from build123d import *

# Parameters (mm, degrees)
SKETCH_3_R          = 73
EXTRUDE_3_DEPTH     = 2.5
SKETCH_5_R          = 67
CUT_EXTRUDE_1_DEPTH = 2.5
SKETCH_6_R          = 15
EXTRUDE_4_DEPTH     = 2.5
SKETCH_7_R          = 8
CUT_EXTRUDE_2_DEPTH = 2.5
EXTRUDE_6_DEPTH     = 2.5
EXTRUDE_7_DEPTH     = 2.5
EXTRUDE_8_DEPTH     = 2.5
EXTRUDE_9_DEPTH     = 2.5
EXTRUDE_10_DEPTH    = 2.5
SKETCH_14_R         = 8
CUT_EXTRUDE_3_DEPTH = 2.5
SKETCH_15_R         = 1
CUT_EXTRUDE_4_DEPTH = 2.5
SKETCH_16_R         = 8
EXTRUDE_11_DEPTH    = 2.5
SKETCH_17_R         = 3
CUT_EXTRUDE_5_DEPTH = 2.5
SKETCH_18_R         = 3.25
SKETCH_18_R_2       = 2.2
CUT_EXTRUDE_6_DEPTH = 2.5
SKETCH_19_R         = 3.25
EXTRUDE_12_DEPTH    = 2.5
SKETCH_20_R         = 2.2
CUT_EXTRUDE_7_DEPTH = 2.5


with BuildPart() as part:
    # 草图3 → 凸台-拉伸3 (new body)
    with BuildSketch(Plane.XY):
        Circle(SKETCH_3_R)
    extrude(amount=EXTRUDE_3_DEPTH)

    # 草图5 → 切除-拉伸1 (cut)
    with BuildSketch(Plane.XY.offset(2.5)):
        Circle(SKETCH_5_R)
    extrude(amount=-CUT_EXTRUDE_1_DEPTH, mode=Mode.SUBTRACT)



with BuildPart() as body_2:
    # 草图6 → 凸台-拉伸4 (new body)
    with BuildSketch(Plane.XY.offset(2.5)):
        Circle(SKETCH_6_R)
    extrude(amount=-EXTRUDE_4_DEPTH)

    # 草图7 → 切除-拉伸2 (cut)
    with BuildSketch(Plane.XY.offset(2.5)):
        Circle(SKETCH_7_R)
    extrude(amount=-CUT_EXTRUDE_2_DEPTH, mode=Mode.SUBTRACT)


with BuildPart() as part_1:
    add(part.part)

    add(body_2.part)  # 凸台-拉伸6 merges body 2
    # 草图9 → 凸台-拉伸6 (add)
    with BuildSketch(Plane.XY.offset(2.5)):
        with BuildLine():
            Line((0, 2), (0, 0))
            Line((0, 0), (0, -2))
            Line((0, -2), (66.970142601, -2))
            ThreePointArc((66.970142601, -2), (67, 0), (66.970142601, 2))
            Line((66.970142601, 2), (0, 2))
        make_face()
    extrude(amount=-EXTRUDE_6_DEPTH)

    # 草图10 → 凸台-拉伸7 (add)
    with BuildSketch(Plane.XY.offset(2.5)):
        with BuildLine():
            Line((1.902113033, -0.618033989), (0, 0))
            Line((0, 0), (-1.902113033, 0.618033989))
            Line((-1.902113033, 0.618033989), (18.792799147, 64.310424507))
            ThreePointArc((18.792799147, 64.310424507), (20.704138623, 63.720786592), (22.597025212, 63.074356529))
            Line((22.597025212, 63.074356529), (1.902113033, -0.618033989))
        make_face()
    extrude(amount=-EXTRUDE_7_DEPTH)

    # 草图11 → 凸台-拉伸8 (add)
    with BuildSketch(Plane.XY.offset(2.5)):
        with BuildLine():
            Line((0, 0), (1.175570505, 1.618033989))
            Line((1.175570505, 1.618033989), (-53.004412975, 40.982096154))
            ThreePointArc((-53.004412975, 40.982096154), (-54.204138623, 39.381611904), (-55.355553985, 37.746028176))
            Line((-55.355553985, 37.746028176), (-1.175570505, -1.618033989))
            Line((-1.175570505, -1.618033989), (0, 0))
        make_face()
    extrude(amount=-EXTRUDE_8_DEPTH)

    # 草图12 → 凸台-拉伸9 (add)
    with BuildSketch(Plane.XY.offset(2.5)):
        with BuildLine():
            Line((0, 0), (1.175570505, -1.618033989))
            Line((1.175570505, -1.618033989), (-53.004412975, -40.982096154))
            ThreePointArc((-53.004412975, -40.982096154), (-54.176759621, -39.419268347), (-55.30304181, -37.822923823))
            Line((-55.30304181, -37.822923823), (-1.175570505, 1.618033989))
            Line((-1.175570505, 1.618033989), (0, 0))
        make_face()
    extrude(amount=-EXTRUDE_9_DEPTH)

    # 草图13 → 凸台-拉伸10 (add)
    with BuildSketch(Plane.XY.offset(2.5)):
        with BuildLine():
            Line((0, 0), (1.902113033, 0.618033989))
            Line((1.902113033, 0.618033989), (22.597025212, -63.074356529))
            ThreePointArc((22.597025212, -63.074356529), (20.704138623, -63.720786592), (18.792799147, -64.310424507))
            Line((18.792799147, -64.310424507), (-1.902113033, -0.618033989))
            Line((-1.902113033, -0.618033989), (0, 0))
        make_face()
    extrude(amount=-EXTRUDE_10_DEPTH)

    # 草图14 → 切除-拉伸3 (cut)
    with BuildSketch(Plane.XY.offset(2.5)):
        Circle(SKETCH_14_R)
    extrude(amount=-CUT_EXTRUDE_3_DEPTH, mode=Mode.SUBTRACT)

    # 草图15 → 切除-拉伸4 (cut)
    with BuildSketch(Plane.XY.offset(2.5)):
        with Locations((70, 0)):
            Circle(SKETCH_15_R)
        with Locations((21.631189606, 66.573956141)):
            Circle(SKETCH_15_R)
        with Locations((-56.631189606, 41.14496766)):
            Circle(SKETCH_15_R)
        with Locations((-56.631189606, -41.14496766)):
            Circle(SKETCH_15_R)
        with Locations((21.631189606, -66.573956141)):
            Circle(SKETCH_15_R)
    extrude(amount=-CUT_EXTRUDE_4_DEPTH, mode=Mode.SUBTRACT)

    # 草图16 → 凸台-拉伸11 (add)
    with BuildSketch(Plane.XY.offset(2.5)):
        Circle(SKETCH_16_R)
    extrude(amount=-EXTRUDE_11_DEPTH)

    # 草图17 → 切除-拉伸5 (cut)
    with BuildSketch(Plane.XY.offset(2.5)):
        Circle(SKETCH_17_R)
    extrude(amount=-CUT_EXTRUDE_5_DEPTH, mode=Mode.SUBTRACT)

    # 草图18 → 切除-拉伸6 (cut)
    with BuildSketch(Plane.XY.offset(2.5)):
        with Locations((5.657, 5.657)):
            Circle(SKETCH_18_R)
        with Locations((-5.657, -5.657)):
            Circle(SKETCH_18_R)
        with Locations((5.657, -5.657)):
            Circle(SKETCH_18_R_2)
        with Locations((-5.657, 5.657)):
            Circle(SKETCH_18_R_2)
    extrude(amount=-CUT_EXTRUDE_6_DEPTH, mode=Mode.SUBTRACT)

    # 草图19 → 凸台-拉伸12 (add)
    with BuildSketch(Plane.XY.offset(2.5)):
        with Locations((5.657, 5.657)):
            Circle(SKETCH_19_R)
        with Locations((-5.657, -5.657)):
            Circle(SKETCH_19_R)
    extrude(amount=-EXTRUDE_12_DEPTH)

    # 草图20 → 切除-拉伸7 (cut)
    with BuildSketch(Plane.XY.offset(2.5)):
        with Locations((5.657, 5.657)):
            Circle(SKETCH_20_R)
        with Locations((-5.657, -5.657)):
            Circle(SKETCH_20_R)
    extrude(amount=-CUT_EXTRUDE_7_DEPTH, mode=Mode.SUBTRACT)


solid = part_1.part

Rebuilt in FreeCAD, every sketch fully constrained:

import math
import FreeCAD as App
import Part
import Sketcher

V = App.Vector
Q = App.Units.Quantity

doc = App.newDocument("Part")
params = doc.addObject("Spreadsheet::Sheet", "Params")
for row, (alias, value) in enumerate([
    ("sketch1_diameter", "146 mm"),
    ("pad1_length", "2.5 mm"),
    ("sketch2_diameter", "134 mm"),
    ("pocket1_length", "2.5 mm"),
    ("sketch3_diameter", "30 mm"),
    ("pad2_length", "2.5 mm"),
    ("sketch4_diameter", "16 mm"),
    ("pocket2_length", "2.5 mm"),
    ("sketch5_radius", "67 mm"),
    ("sketch5_height", "4 mm"),
    ("pad3_length", "2.5 mm"),
    ("sketch6_radius", "67 mm"),
    ("sketch6_length", "4 mm"),
    ("pad4_length", "2.5 mm"),
    ("sketch7_radius", "67 mm"),
    ("sketch7_length", "4 mm"),
    ("pad5_length", "2.5 mm"),
    ("sketch8_radius", "66.999999 mm"),
    ("sketch8_length", "4 mm"),
    ("pad6_length", "2.5 mm"),
    ("sketch9_radius", "67 mm"),
    ("sketch9_length", "4 mm"),
    ("pad7_length", "2.5 mm"),
    ("sketch10_diameter", "16 mm"),
    ("pocket3_length", "2.5 mm"),
    ("sketch11_diameter", "2 mm"),
    ("pocket4_length", "2.5 mm"),
    ("sketch12_diameter", "16 mm"),
    ("pad8_length", "2.5 mm"),
    ("sketch13_diameter", "6 mm"),
    ("pocket5_length", "2.5 mm"),
    ("sketch14_diameter", "6.5 mm"),
    ("sketch14_diameter2", "4.4 mm"),
    ("pocket6_length", "2.5 mm"),
    ("sketch15_diameter", "6.5 mm"),
    ("pad9_length", "2.5 mm"),
    ("sketch16_diameter", "4.4 mm"),
    ("pocket7_length", "2.5 mm"),
], start=1):
    params.set(f"A{row}", alias)
    params.set(f"B{row}", "=" + value)
    params.setAlias(f"B{row}", alias)

body = doc.addObject("PartDesign::Body", "Body")

# Sketch on XY plane
sketch1 = body.newObject("Sketcher::SketchObject", "Sketch")
sketch1.AttachmentSupport = (doc.getObject("XY_Plane"), [""])
sketch1.MapMode = "FlatFace"
sketch1.addGeometry(Part.Circle(V(0, 0, 0), V(0, 0, 1), 73), False)
sketch1.addConstraint(Sketcher.Constraint("Coincident", 0, 3, -1, 1))
sketch1.addConstraint(Sketcher.Constraint("Diameter", 0, 146.0))
sketch1.setExpression("Constraints[1]", "Params.sketch1_diameter")
pad1 = body.newObject("PartDesign::Pad", "Pad")
pad1.Profile = sketch1
pad1.setExpression("Length", "Params.pad1_length")

# Sketch on XY plane
sketch2 = body.newObject("Sketcher::SketchObject", "Sketch001")
sketch2.AttachmentSupport = (doc.getObject("XY_Plane"), [""])
sketch2.MapMode = "FlatFace"
sketch2.AttachmentOffset = App.Placement(V(0, 0, 2.5), App.Rotation())
sketch2.addGeometry(Part.Circle(V(0, 0, 0), V(0, 0, 1), 67), False)
sketch2.addConstraint(Sketcher.Constraint("Coincident", 0, 3, -1, 1))
sketch2.addConstraint(Sketcher.Constraint("Diameter", 0, 134.0))
sketch2.setExpression("Constraints[1]", "Params.sketch2_diameter")
pocket1 = body.newObject("PartDesign::Pocket", "Pocket")
pocket1.Profile = sketch2
pocket1.setExpression("Length", "Params.pocket1_length")
body2 = doc.addObject("PartDesign::Body", "Body001")

# Sketch on XY plane
sketch3 = body2.newObject("Sketcher::SketchObject", "Sketch002")
sketch3.AttachmentSupport = (doc.getObject("XY_Plane001"), [""])
sketch3.MapMode = "FlatFace"
sketch3.AttachmentOffset = App.Placement(V(0, 0, 2.5), App.Rotation())
sketch3.addGeometry(Part.Circle(V(0, 0, 0), V(0, 0, 1), 15), False)
sketch3.addConstraint(Sketcher.Constraint("Coincident", 0, 3, -1, 1))
sketch3.addConstraint(Sketcher.Constraint("Diameter", 0, 30.0))
sketch3.setExpression("Constraints[1]", "Params.sketch3_diameter")
pad2 = body2.newObject("PartDesign::Pad", "Pad001")
pad2.Profile = sketch3
pad2.setExpression("Length", "Params.pad2_length")
pad2.Reversed = True

# Sketch on XY plane
sketch4 = body2.newObject("Sketcher::SketchObject", "Sketch003")
sketch4.AttachmentSupport = (doc.getObject("XY_Plane001"), [""])
sketch4.MapMode = "FlatFace"
sketch4.AttachmentOffset = App.Placement(V(0, 0, 2.5), App.Rotation())
sketch4.addGeometry(Part.Circle(V(0, 0, 0), V(0, 0, 1), 8), False)
sketch4.addConstraint(Sketcher.Constraint("Coincident", 0, 3, -1, 1))
sketch4.addConstraint(Sketcher.Constraint("Diameter", 0, 16.0))
sketch4.setExpression("Constraints[1]", "Params.sketch4_diameter")
pocket2 = body2.newObject("PartDesign::Pocket", "Pocket001")
pocket2.Profile = sketch4
pocket2.setExpression("Length", "Params.pocket2_length")
body.AllowCompound = True
doc.recompute()

boolean = body.newObject("PartDesign::Boolean", "Boolean")
boolean.Type = "Fuse"
boolean.addObjects([body2])

# Sketch on XY plane
sketch5 = body.newObject("Sketcher::SketchObject", "Sketch004")
sketch5.AttachmentSupport = (doc.getObject("XY_Plane"), [""])
sketch5.MapMode = "FlatFace"
sketch5.AttachmentOffset = App.Placement(V(0, 0, 2.5), App.Rotation())
sketch5.addGeometry(Part.LineSegment(V(0, 2, 0), V(0, -2, 0)), False)
sketch5.addGeometry(Part.LineSegment(V(0, -2, 0), V(67, -2, 0)), False)
sketch5.addGeometry(Part.ArcOfCircle(Part.Circle(V(0, 0, 0), V(0, 0, 1), 67), math.radians(-1.71), math.radians(1.71)), False)
sketch5.addGeometry(Part.LineSegment(V(67, 2, 0), V(0, 2, 0)), False)
sketch5.addConstraint(Sketcher.Constraint("Coincident", 0, 2, 1, 1))
sketch5.addConstraint(Sketcher.Constraint("Coincident", 1, 2, 2, 1))
sketch5.addConstraint(Sketcher.Constraint("Coincident", 2, 2, 3, 1))
sketch5.addConstraint(Sketcher.Constraint("Coincident", 3, 2, 0, 1))
sketch5.addConstraint(Sketcher.Constraint("Vertical", 0))
sketch5.addConstraint(Sketcher.Constraint("Horizontal", 1))
sketch5.addConstraint(Sketcher.Constraint("Horizontal", 3))
sketch5.addConstraint(Sketcher.Constraint("Coincident", 2, 3, -1, 1))
sketch5.addConstraint(Sketcher.Constraint("Symmetric", 0, 2, 3, 2, -1, 1))
sketch5.addConstraint(Sketcher.Constraint("Radius", 2, 67.0))
sketch5.addConstraint(Sketcher.Constraint("DistanceY", 0, 2, 0, 1, 4.0))
sketch5.setExpression("Constraints[9]", "Params.sketch5_radius")
sketch5.setExpression("Constraints[10]", "Params.sketch5_height")
pad3 = body.newObject("PartDesign::Pad", "Pad002")
pad3.Profile = sketch5
pad3.setExpression("Length", "Params.pad3_length")
pad3.Reversed = True

# Sketch on XY plane
sketch6 = body.newObject("Sketcher::SketchObject", "Sketch005")
sketch6.AttachmentSupport = (doc.getObject("XY_Plane"), [""])
sketch6.MapMode = "FlatFace"
sketch6.AttachmentOffset = App.Placement(V(0, 0, 2.5), App.Rotation())
sketch6.addGeometry(Part.LineSegment(V(-1.9, 0.6, 0), V(1.9, -0.6, 0)), False)
sketch6.addGeometry(Part.LineSegment(V(1.9, -0.6, 0), V(22.6, 63.1, 0)), False)
sketch6.addGeometry(Part.ArcOfCircle(Part.Circle(V(0, 0, 0), V(0, 0, 1), 67), math.radians(70.29), math.radians(73.71)), False)
sketch6.addGeometry(Part.LineSegment(V(18.8, 64.3, 0), V(-1.9, 0.6, 0)), False)
sketch6.addConstraint(Sketcher.Constraint("Coincident", 0, 2, 1, 1))
sketch6.addConstraint(Sketcher.Constraint("Coincident", 1, 2, 2, 1))
sketch6.addConstraint(Sketcher.Constraint("Coincident", 2, 2, 3, 1))
sketch6.addConstraint(Sketcher.Constraint("Coincident", 3, 2, 0, 1))
sketch6.addConstraint(Sketcher.Constraint("Coincident", 2, 3, -1, 1))
sketch6.addConstraint(Sketcher.Constraint("Symmetric", 0, 2, 3, 2, -1, 1))
sketch6.addConstraint(Sketcher.Constraint("Perpendicular", 0, 1))
sketch6.addConstraint(Sketcher.Constraint("Parallel", 1, 3))
sketch6.addConstraint(Sketcher.Constraint("Radius", 2, 67.0))
sketch6.addConstraint(Sketcher.Constraint("Angle", 0, Q("-18 deg")))
sketch6.addConstraint(Sketcher.Constraint("Distance", 0, 4.0))
sketch6.setExpression("Constraints[8]", "Params.sketch6_radius")
sketch6.setExpression("Constraints[10]", "Params.sketch6_length")
pad4 = body.newObject("PartDesign::Pad", "Pad003")
pad4.Profile = sketch6
pad4.setExpression("Length", "Params.pad4_length")
pad4.Reversed = True

# Sketch on XY plane
sketch7 = body.newObject("Sketcher::SketchObject", "Sketch006")
sketch7.AttachmentSupport = (doc.getObject("XY_Plane"), [""])
sketch7.MapMode = "FlatFace"
sketch7.AttachmentOffset = App.Placement(V(0, 0, 2.5), App.Rotation())
sketch7.addGeometry(Part.LineSegment(V(1.2, 1.6, 0), V(-53, 41, 0)), False)
sketch7.addGeometry(Part.ArcOfCircle(Part.Circle(V(0, 0, 0), V(0, 0, 1), 67), math.radians(142.29), math.radians(145.71)), False)
sketch7.addGeometry(Part.LineSegment(V(-55.4, 37.7, 0), V(-1.2, -1.6, 0)), False)
sketch7.addGeometry(Part.LineSegment(V(-1.2, -1.6, 0), V(1.2, 1.6, 0)), False)
sketch7.addConstraint(Sketcher.Constraint("Coincident", 0, 2, 1, 1))
sketch7.addConstraint(Sketcher.Constraint("Coincident", 1, 2, 2, 1))
sketch7.addConstraint(Sketcher.Constraint("Coincident", 2, 2, 3, 1))
sketch7.addConstraint(Sketcher.Constraint("Coincident", 3, 2, 0, 1))
sketch7.addConstraint(Sketcher.Constraint("Coincident", 1, 3, -1, 1))
sketch7.addConstraint(Sketcher.Constraint("Symmetric", 2, 2, 3, 2, -1, 1))
sketch7.addConstraint(Sketcher.Constraint("Parallel", 0, 2))
sketch7.addConstraint(Sketcher.Constraint("Perpendicular", 2, 3))
sketch7.addConstraint(Sketcher.Constraint("Radius", 1, 67.0))
sketch7.addConstraint(Sketcher.Constraint("Angle", 0, Q("144 deg")))
sketch7.addConstraint(Sketcher.Constraint("Distance", 3, 4.0))
sketch7.setExpression("Constraints[8]", "Params.sketch7_radius")
sketch7.setExpression("Constraints[10]", "Params.sketch7_length")
pad5 = body.newObject("PartDesign::Pad", "Pad004")
pad5.Profile = sketch7
pad5.setExpression("Length", "Params.pad5_length")
pad5.Reversed = True

# Sketch on XY plane
sketch8 = body.newObject("Sketcher::SketchObject", "Sketch007")
sketch8.AttachmentSupport = (doc.getObject("XY_Plane"), [""])
sketch8.MapMode = "FlatFace"
sketch8.AttachmentOffset = App.Placement(V(0, 0, 2.5), App.Rotation())
sketch8.addGeometry(Part.LineSegment(V(-53, -41, 0), V(1.2, -1.6, 0)), False)
sketch8.addGeometry(Part.LineSegment(V(1.2, -1.6, 0), V(-1.2, 1.6, 0)), False)
sketch8.addGeometry(Part.LineSegment(V(-1.2, 1.6, 0), V(-55.3, -37.8, 0)), False)
sketch8.addGeometry(Part.ArcOfCircle(Part.Circle(V(0, 0, 0), V(0, 0, 1), 67), math.radians(-145.63), math.radians(-142.29)), False)
sketch8.addConstraint(Sketcher.Constraint("Coincident", 0, 2, 1, 1))
sketch8.addConstraint(Sketcher.Constraint("Coincident", 1, 2, 2, 1))
sketch8.addConstraint(Sketcher.Constraint("Coincident", 2, 2, 3, 1))
sketch8.addConstraint(Sketcher.Constraint("Coincident", 3, 2, 0, 1))
sketch8.addConstraint(Sketcher.Constraint("Coincident", 3, 3, -1, 1))
sketch8.addConstraint(Sketcher.Constraint("Symmetric", 0, 2, 1, 2, -1, 1))
sketch8.addConstraint(Sketcher.Constraint("Perpendicular", 0, 1))
sketch8.addConstraint(Sketcher.Constraint("Radius", 3, 66.999999))
sketch8.addConstraint(Sketcher.Constraint("Angle", 0, Q("36 deg")))
sketch8.addConstraint(Sketcher.Constraint("Distance", 1, 4.0))
sketch8.addConstraint(Sketcher.Constraint("DistanceX", 2, 2, -1, 1, 55.303042))
sketch8.setExpression("Constraints[7]", "Params.sketch8_radius")
sketch8.setExpression("Constraints[9]", "Params.sketch8_length")
pad6 = body.newObject("PartDesign::Pad", "Pad005")
pad6.Profile = sketch8
pad6.setExpression("Length", "Params.pad6_length")
pad6.Reversed = True

# Sketch on XY plane
sketch9 = body.newObject("Sketcher::SketchObject", "Sketch008")
sketch9.AttachmentSupport = (doc.getObject("XY_Plane"), [""])
sketch9.MapMode = "FlatFace"
sketch9.AttachmentOffset = App.Placement(V(0, 0, 2.5), App.Rotation())
sketch9.addGeometry(Part.LineSegment(V(22.6, -63.1, 0), V(1.9, 0.6, 0)), False)
sketch9.addGeometry(Part.LineSegment(V(1.9, 0.6, 0), V(-1.9, -0.6, 0)), False)
sketch9.addGeometry(Part.LineSegment(V(-1.9, -0.6, 0), V(18.8, -64.3, 0)), False)
sketch9.addGeometry(Part.ArcOfCircle(Part.Circle(V(0, 0, 0), V(0, 0, 1), 67), math.radians(-73.71), math.radians(-70.29)), False)
sketch9.addConstraint(Sketcher.Constraint("Coincident", 0, 2, 1, 1))
sketch9.addConstraint(Sketcher.Constraint("Coincident", 1, 2, 2, 1))
sketch9.addConstraint(Sketcher.Constraint("Coincident", 2, 2, 3, 1))
sketch9.addConstraint(Sketcher.Constraint("Coincident", 3, 2, 0, 1))
sketch9.addConstraint(Sketcher.Constraint("Coincident", 3, 3, -1, 1))
sketch9.addConstraint(Sketcher.Constraint("Symmetric", 0, 2, 1, 2, -1, 1))
sketch9.addConstraint(Sketcher.Constraint("Perpendicular", 0, 1))
sketch9.addConstraint(Sketcher.Constraint("Perpendicular", 1, 2))
sketch9.addConstraint(Sketcher.Constraint("Radius", 3, 67.0))
sketch9.addConstraint(Sketcher.Constraint("Angle", 0, Q("108 deg")))
sketch9.addConstraint(Sketcher.Constraint("Distance", 1, 4.0))
sketch9.setExpression("Constraints[8]", "Params.sketch9_radius")
sketch9.setExpression("Constraints[10]", "Params.sketch9_length")
pad7 = body.newObject("PartDesign::Pad", "Pad006")
pad7.Profile = sketch9
pad7.setExpression("Length", "Params.pad7_length")
pad7.Reversed = True

# Sketch on XY plane
sketch10 = body.newObject("Sketcher::SketchObject", "Sketch009")
sketch10.AttachmentSupport = (doc.getObject("XY_Plane"), [""])
sketch10.MapMode = "FlatFace"
sketch10.AttachmentOffset = App.Placement(V(0, 0, 2.5), App.Rotation())
sketch10.addGeometry(Part.Circle(V(0, 0, 0), V(0, 0, 1), 8), False)
sketch10.addConstraint(Sketcher.Constraint("Coincident", 0, 3, -1, 1))
sketch10.addConstraint(Sketcher.Constraint("Diameter", 0, 16.0))
sketch10.setExpression("Constraints[1]", "Params.sketch10_diameter")
pocket3 = body.newObject("PartDesign::Pocket", "Pocket002")
pocket3.Profile = sketch10
pocket3.setExpression("Length", "Params.pocket3_length")

# Sketch on XY plane
sketch11 = body.newObject("Sketcher::SketchObject", "Sketch010")
sketch11.AttachmentSupport = (doc.getObject("XY_Plane"), [""])
sketch11.MapMode = "FlatFace"
sketch11.AttachmentOffset = App.Placement(V(0, 0, 2.5), App.Rotation())
sketch11.addGeometry(Part.Circle(V(70, 0, 0), V(0, 0, 1), 1), False)
sketch11.addGeometry(Part.Circle(V(21.6, 66.6, 0), V(0, 0, 1), 1), False)
sketch11.addGeometry(Part.Circle(V(-56.6, 41.1, 0), V(0, 0, 1), 1), False)
sketch11.addGeometry(Part.Circle(V(-56.6, -41.1, 0), V(0, 0, 1), 1), False)
sketch11.addGeometry(Part.Circle(V(21.6, -66.6, 0), V(0, 0, 1), 1), False)
sketch11.addConstraint(Sketcher.Constraint("Equal", 0, 1))
sketch11.addConstraint(Sketcher.Constraint("Equal", 1, 2))
sketch11.addConstraint(Sketcher.Constraint("Equal", 2, 3))
sketch11.addConstraint(Sketcher.Constraint("Equal", 3, 4))
sketch11.addConstraint(Sketcher.Constraint("Symmetric", 2, 3, 3, 3, -1))
sketch11.addConstraint(Sketcher.Constraint("Symmetric", 1, 3, 4, 3, -1))
sketch11.addConstraint(Sketcher.Constraint("PointOnObject", 0, 3, -1))
sketch11.addConstraint(Sketcher.Constraint("Diameter", 0, 2.0))
sketch11.addConstraint(Sketcher.Constraint("DistanceX", -1, 1, 0, 3, 70.0))
sketch11.addConstraint(Sketcher.Constraint("DistanceX", -1, 1, 1, 3, 21.63119))
sketch11.addConstraint(Sketcher.Constraint("DistanceX", 2, 3, -1, 1, 56.63119))
sketch11.addConstraint(Sketcher.Constraint("DistanceY", 2, 3, 1, 3, 25.428988))
sketch11.addConstraint(Sketcher.Constraint("DistanceY", -1, 1, 1, 3, 66.573956))
sketch11.setExpression("Constraints[7]", "Params.sketch11_diameter")
pocket4 = body.newObject("PartDesign::Pocket", "Pocket003")
pocket4.Profile = sketch11
pocket4.setExpression("Length", "Params.pocket4_length")

# Sketch on XY plane
sketch12 = body.newObject("Sketcher::SketchObject", "Sketch011")
sketch12.AttachmentSupport = (doc.getObject("XY_Plane"), [""])
sketch12.MapMode = "FlatFace"
sketch12.AttachmentOffset = App.Placement(V(0, 0, 2.5), App.Rotation())
sketch12.addGeometry(Part.Circle(V(0, 0, 0), V(0, 0, 1), 8), False)
sketch12.addConstraint(Sketcher.Constraint("Coincident", 0, 3, -1, 1))
sketch12.addConstraint(Sketcher.Constraint("Diameter", 0, 16.0))
sketch12.setExpression("Constraints[1]", "Params.sketch12_diameter")
pad8 = body.newObject("PartDesign::Pad", "Pad007")
pad8.Profile = sketch12
pad8.setExpression("Length", "Params.pad8_length")
pad8.Reversed = True

# Sketch on XY plane
sketch13 = body.newObject("Sketcher::SketchObject", "Sketch012")
sketch13.AttachmentSupport = (doc.getObject("XY_Plane"), [""])
sketch13.MapMode = "FlatFace"
sketch13.AttachmentOffset = App.Placement(V(0, 0, 2.5), App.Rotation())
sketch13.addGeometry(Part.Circle(V(0, 0, 0), V(0, 0, 1), 3), False)
sketch13.addConstraint(Sketcher.Constraint("Coincident", 0, 3, -1, 1))
sketch13.addConstraint(Sketcher.Constraint("Diameter", 0, 6.0))
sketch13.setExpression("Constraints[1]", "Params.sketch13_diameter")
pocket5 = body.newObject("PartDesign::Pocket", "Pocket004")
pocket5.Profile = sketch13
pocket5.setExpression("Length", "Params.pocket5_length")

# Sketch on XY plane
sketch14 = body.newObject("Sketcher::SketchObject", "Sketch013")
sketch14.AttachmentSupport = (doc.getObject("XY_Plane"), [""])
sketch14.MapMode = "FlatFace"
sketch14.AttachmentOffset = App.Placement(V(0, 0, 2.5), App.Rotation())
sketch14.addGeometry(Part.Circle(V(5.7, 5.7, 0), V(0, 0, 1), 3.2), False)
sketch14.addGeometry(Part.Circle(V(-5.7, -5.7, 0), V(0, 0, 1), 3.2), False)
sketch14.addGeometry(Part.Circle(V(5.7, -5.7, 0), V(0, 0, 1), 2.2), False)
sketch14.addGeometry(Part.Circle(V(-5.7, 5.7, 0), V(0, 0, 1), 2.2), False)
sketch14.addConstraint(Sketcher.Constraint("Equal", 0, 1))
sketch14.addConstraint(Sketcher.Constraint("Equal", 2, 3))
sketch14.addConstraint(Sketcher.Constraint("Symmetric", 0, 3, 1, 3, -1, 1))
sketch14.addConstraint(Sketcher.Constraint("Symmetric", 2, 3, 3, 3, -1, 1))
sketch14.addConstraint(Sketcher.Constraint("Symmetric", 1, 3, 2, 3, -2))
sketch14.addConstraint(Sketcher.Constraint("Diameter", 0, 6.5))
sketch14.addConstraint(Sketcher.Constraint("Diameter", 2, 4.4))
sketch14.addConstraint(Sketcher.Constraint("DistanceX", -1, 1, 0, 3, 5.657))
sketch14.addConstraint(Sketcher.Constraint("DistanceY", -1, 1, 0, 3, 5.657))
sketch14.setExpression("Constraints[5]", "Params.sketch14_diameter")
sketch14.setExpression("Constraints[6]", "Params.sketch14_diameter2")
pocket6 = body.newObject("PartDesign::Pocket", "Pocket005")
pocket6.Profile = sketch14
pocket6.setExpression("Length", "Params.pocket6_length")

# Sketch on XY plane
sketch15 = body.newObject("Sketcher::SketchObject", "Sketch014")
sketch15.AttachmentSupport = (doc.getObject("XY_Plane"), [""])
sketch15.MapMode = "FlatFace"
sketch15.AttachmentOffset = App.Placement(V(0, 0, 2.5), App.Rotation())
sketch15.addGeometry(Part.Circle(V(5.7, 5.7, 0), V(0, 0, 1), 3.2), False)
sketch15.addGeometry(Part.Circle(V(-5.7, -5.7, 0), V(0, 0, 1), 3.2), False)
sketch15.addConstraint(Sketcher.Constraint("Equal", 0, 1))
sketch15.addConstraint(Sketcher.Constraint("Symmetric", 0, 3, 1, 3, -1, 1))
sketch15.addConstraint(Sketcher.Constraint("Diameter", 0, 6.5))
sketch15.addConstraint(Sketcher.Constraint("DistanceX", -1, 1, 0, 3, 5.657))
sketch15.addConstraint(Sketcher.Constraint("DistanceY", -1, 1, 0, 3, 5.657))
sketch15.setExpression("Constraints[2]", "Params.sketch15_diameter")
pad9 = body.newObject("PartDesign::Pad", "Pad008")
pad9.Profile = sketch15
pad9.setExpression("Length", "Params.pad9_length")
pad9.Reversed = True

# Sketch on XY plane
sketch16 = body.newObject("Sketcher::SketchObject", "Sketch015")
sketch16.AttachmentSupport = (doc.getObject("XY_Plane"), [""])
sketch16.MapMode = "FlatFace"
sketch16.AttachmentOffset = App.Placement(V(0, 0, 2.5), App.Rotation())
sketch16.addGeometry(Part.Circle(V(5.7, 5.7, 0), V(0, 0, 1), 2.2), False)
sketch16.addGeometry(Part.Circle(V(-5.7, -5.7, 0), V(0, 0, 1), 2.2), False)
sketch16.addConstraint(Sketcher.Constraint("Equal", 0, 1))
sketch16.addConstraint(Sketcher.Constraint("Symmetric", 0, 3, 1, 3, -1, 1))
sketch16.addConstraint(Sketcher.Constraint("Diameter", 0, 4.4))
sketch16.addConstraint(Sketcher.Constraint("DistanceX", -1, 1, 0, 3, 5.657))
sketch16.addConstraint(Sketcher.Constraint("DistanceY", -1, 1, 0, 3, 5.657))
sketch16.setExpression("Constraints[2]", "Params.sketch16_diameter")
pocket7 = body.newObject("PartDesign::Pocket", "Pocket006")
pocket7.Profile = sketch16
pocket7.setExpression("Length", "Params.pocket7_length")

doc.recompute()
